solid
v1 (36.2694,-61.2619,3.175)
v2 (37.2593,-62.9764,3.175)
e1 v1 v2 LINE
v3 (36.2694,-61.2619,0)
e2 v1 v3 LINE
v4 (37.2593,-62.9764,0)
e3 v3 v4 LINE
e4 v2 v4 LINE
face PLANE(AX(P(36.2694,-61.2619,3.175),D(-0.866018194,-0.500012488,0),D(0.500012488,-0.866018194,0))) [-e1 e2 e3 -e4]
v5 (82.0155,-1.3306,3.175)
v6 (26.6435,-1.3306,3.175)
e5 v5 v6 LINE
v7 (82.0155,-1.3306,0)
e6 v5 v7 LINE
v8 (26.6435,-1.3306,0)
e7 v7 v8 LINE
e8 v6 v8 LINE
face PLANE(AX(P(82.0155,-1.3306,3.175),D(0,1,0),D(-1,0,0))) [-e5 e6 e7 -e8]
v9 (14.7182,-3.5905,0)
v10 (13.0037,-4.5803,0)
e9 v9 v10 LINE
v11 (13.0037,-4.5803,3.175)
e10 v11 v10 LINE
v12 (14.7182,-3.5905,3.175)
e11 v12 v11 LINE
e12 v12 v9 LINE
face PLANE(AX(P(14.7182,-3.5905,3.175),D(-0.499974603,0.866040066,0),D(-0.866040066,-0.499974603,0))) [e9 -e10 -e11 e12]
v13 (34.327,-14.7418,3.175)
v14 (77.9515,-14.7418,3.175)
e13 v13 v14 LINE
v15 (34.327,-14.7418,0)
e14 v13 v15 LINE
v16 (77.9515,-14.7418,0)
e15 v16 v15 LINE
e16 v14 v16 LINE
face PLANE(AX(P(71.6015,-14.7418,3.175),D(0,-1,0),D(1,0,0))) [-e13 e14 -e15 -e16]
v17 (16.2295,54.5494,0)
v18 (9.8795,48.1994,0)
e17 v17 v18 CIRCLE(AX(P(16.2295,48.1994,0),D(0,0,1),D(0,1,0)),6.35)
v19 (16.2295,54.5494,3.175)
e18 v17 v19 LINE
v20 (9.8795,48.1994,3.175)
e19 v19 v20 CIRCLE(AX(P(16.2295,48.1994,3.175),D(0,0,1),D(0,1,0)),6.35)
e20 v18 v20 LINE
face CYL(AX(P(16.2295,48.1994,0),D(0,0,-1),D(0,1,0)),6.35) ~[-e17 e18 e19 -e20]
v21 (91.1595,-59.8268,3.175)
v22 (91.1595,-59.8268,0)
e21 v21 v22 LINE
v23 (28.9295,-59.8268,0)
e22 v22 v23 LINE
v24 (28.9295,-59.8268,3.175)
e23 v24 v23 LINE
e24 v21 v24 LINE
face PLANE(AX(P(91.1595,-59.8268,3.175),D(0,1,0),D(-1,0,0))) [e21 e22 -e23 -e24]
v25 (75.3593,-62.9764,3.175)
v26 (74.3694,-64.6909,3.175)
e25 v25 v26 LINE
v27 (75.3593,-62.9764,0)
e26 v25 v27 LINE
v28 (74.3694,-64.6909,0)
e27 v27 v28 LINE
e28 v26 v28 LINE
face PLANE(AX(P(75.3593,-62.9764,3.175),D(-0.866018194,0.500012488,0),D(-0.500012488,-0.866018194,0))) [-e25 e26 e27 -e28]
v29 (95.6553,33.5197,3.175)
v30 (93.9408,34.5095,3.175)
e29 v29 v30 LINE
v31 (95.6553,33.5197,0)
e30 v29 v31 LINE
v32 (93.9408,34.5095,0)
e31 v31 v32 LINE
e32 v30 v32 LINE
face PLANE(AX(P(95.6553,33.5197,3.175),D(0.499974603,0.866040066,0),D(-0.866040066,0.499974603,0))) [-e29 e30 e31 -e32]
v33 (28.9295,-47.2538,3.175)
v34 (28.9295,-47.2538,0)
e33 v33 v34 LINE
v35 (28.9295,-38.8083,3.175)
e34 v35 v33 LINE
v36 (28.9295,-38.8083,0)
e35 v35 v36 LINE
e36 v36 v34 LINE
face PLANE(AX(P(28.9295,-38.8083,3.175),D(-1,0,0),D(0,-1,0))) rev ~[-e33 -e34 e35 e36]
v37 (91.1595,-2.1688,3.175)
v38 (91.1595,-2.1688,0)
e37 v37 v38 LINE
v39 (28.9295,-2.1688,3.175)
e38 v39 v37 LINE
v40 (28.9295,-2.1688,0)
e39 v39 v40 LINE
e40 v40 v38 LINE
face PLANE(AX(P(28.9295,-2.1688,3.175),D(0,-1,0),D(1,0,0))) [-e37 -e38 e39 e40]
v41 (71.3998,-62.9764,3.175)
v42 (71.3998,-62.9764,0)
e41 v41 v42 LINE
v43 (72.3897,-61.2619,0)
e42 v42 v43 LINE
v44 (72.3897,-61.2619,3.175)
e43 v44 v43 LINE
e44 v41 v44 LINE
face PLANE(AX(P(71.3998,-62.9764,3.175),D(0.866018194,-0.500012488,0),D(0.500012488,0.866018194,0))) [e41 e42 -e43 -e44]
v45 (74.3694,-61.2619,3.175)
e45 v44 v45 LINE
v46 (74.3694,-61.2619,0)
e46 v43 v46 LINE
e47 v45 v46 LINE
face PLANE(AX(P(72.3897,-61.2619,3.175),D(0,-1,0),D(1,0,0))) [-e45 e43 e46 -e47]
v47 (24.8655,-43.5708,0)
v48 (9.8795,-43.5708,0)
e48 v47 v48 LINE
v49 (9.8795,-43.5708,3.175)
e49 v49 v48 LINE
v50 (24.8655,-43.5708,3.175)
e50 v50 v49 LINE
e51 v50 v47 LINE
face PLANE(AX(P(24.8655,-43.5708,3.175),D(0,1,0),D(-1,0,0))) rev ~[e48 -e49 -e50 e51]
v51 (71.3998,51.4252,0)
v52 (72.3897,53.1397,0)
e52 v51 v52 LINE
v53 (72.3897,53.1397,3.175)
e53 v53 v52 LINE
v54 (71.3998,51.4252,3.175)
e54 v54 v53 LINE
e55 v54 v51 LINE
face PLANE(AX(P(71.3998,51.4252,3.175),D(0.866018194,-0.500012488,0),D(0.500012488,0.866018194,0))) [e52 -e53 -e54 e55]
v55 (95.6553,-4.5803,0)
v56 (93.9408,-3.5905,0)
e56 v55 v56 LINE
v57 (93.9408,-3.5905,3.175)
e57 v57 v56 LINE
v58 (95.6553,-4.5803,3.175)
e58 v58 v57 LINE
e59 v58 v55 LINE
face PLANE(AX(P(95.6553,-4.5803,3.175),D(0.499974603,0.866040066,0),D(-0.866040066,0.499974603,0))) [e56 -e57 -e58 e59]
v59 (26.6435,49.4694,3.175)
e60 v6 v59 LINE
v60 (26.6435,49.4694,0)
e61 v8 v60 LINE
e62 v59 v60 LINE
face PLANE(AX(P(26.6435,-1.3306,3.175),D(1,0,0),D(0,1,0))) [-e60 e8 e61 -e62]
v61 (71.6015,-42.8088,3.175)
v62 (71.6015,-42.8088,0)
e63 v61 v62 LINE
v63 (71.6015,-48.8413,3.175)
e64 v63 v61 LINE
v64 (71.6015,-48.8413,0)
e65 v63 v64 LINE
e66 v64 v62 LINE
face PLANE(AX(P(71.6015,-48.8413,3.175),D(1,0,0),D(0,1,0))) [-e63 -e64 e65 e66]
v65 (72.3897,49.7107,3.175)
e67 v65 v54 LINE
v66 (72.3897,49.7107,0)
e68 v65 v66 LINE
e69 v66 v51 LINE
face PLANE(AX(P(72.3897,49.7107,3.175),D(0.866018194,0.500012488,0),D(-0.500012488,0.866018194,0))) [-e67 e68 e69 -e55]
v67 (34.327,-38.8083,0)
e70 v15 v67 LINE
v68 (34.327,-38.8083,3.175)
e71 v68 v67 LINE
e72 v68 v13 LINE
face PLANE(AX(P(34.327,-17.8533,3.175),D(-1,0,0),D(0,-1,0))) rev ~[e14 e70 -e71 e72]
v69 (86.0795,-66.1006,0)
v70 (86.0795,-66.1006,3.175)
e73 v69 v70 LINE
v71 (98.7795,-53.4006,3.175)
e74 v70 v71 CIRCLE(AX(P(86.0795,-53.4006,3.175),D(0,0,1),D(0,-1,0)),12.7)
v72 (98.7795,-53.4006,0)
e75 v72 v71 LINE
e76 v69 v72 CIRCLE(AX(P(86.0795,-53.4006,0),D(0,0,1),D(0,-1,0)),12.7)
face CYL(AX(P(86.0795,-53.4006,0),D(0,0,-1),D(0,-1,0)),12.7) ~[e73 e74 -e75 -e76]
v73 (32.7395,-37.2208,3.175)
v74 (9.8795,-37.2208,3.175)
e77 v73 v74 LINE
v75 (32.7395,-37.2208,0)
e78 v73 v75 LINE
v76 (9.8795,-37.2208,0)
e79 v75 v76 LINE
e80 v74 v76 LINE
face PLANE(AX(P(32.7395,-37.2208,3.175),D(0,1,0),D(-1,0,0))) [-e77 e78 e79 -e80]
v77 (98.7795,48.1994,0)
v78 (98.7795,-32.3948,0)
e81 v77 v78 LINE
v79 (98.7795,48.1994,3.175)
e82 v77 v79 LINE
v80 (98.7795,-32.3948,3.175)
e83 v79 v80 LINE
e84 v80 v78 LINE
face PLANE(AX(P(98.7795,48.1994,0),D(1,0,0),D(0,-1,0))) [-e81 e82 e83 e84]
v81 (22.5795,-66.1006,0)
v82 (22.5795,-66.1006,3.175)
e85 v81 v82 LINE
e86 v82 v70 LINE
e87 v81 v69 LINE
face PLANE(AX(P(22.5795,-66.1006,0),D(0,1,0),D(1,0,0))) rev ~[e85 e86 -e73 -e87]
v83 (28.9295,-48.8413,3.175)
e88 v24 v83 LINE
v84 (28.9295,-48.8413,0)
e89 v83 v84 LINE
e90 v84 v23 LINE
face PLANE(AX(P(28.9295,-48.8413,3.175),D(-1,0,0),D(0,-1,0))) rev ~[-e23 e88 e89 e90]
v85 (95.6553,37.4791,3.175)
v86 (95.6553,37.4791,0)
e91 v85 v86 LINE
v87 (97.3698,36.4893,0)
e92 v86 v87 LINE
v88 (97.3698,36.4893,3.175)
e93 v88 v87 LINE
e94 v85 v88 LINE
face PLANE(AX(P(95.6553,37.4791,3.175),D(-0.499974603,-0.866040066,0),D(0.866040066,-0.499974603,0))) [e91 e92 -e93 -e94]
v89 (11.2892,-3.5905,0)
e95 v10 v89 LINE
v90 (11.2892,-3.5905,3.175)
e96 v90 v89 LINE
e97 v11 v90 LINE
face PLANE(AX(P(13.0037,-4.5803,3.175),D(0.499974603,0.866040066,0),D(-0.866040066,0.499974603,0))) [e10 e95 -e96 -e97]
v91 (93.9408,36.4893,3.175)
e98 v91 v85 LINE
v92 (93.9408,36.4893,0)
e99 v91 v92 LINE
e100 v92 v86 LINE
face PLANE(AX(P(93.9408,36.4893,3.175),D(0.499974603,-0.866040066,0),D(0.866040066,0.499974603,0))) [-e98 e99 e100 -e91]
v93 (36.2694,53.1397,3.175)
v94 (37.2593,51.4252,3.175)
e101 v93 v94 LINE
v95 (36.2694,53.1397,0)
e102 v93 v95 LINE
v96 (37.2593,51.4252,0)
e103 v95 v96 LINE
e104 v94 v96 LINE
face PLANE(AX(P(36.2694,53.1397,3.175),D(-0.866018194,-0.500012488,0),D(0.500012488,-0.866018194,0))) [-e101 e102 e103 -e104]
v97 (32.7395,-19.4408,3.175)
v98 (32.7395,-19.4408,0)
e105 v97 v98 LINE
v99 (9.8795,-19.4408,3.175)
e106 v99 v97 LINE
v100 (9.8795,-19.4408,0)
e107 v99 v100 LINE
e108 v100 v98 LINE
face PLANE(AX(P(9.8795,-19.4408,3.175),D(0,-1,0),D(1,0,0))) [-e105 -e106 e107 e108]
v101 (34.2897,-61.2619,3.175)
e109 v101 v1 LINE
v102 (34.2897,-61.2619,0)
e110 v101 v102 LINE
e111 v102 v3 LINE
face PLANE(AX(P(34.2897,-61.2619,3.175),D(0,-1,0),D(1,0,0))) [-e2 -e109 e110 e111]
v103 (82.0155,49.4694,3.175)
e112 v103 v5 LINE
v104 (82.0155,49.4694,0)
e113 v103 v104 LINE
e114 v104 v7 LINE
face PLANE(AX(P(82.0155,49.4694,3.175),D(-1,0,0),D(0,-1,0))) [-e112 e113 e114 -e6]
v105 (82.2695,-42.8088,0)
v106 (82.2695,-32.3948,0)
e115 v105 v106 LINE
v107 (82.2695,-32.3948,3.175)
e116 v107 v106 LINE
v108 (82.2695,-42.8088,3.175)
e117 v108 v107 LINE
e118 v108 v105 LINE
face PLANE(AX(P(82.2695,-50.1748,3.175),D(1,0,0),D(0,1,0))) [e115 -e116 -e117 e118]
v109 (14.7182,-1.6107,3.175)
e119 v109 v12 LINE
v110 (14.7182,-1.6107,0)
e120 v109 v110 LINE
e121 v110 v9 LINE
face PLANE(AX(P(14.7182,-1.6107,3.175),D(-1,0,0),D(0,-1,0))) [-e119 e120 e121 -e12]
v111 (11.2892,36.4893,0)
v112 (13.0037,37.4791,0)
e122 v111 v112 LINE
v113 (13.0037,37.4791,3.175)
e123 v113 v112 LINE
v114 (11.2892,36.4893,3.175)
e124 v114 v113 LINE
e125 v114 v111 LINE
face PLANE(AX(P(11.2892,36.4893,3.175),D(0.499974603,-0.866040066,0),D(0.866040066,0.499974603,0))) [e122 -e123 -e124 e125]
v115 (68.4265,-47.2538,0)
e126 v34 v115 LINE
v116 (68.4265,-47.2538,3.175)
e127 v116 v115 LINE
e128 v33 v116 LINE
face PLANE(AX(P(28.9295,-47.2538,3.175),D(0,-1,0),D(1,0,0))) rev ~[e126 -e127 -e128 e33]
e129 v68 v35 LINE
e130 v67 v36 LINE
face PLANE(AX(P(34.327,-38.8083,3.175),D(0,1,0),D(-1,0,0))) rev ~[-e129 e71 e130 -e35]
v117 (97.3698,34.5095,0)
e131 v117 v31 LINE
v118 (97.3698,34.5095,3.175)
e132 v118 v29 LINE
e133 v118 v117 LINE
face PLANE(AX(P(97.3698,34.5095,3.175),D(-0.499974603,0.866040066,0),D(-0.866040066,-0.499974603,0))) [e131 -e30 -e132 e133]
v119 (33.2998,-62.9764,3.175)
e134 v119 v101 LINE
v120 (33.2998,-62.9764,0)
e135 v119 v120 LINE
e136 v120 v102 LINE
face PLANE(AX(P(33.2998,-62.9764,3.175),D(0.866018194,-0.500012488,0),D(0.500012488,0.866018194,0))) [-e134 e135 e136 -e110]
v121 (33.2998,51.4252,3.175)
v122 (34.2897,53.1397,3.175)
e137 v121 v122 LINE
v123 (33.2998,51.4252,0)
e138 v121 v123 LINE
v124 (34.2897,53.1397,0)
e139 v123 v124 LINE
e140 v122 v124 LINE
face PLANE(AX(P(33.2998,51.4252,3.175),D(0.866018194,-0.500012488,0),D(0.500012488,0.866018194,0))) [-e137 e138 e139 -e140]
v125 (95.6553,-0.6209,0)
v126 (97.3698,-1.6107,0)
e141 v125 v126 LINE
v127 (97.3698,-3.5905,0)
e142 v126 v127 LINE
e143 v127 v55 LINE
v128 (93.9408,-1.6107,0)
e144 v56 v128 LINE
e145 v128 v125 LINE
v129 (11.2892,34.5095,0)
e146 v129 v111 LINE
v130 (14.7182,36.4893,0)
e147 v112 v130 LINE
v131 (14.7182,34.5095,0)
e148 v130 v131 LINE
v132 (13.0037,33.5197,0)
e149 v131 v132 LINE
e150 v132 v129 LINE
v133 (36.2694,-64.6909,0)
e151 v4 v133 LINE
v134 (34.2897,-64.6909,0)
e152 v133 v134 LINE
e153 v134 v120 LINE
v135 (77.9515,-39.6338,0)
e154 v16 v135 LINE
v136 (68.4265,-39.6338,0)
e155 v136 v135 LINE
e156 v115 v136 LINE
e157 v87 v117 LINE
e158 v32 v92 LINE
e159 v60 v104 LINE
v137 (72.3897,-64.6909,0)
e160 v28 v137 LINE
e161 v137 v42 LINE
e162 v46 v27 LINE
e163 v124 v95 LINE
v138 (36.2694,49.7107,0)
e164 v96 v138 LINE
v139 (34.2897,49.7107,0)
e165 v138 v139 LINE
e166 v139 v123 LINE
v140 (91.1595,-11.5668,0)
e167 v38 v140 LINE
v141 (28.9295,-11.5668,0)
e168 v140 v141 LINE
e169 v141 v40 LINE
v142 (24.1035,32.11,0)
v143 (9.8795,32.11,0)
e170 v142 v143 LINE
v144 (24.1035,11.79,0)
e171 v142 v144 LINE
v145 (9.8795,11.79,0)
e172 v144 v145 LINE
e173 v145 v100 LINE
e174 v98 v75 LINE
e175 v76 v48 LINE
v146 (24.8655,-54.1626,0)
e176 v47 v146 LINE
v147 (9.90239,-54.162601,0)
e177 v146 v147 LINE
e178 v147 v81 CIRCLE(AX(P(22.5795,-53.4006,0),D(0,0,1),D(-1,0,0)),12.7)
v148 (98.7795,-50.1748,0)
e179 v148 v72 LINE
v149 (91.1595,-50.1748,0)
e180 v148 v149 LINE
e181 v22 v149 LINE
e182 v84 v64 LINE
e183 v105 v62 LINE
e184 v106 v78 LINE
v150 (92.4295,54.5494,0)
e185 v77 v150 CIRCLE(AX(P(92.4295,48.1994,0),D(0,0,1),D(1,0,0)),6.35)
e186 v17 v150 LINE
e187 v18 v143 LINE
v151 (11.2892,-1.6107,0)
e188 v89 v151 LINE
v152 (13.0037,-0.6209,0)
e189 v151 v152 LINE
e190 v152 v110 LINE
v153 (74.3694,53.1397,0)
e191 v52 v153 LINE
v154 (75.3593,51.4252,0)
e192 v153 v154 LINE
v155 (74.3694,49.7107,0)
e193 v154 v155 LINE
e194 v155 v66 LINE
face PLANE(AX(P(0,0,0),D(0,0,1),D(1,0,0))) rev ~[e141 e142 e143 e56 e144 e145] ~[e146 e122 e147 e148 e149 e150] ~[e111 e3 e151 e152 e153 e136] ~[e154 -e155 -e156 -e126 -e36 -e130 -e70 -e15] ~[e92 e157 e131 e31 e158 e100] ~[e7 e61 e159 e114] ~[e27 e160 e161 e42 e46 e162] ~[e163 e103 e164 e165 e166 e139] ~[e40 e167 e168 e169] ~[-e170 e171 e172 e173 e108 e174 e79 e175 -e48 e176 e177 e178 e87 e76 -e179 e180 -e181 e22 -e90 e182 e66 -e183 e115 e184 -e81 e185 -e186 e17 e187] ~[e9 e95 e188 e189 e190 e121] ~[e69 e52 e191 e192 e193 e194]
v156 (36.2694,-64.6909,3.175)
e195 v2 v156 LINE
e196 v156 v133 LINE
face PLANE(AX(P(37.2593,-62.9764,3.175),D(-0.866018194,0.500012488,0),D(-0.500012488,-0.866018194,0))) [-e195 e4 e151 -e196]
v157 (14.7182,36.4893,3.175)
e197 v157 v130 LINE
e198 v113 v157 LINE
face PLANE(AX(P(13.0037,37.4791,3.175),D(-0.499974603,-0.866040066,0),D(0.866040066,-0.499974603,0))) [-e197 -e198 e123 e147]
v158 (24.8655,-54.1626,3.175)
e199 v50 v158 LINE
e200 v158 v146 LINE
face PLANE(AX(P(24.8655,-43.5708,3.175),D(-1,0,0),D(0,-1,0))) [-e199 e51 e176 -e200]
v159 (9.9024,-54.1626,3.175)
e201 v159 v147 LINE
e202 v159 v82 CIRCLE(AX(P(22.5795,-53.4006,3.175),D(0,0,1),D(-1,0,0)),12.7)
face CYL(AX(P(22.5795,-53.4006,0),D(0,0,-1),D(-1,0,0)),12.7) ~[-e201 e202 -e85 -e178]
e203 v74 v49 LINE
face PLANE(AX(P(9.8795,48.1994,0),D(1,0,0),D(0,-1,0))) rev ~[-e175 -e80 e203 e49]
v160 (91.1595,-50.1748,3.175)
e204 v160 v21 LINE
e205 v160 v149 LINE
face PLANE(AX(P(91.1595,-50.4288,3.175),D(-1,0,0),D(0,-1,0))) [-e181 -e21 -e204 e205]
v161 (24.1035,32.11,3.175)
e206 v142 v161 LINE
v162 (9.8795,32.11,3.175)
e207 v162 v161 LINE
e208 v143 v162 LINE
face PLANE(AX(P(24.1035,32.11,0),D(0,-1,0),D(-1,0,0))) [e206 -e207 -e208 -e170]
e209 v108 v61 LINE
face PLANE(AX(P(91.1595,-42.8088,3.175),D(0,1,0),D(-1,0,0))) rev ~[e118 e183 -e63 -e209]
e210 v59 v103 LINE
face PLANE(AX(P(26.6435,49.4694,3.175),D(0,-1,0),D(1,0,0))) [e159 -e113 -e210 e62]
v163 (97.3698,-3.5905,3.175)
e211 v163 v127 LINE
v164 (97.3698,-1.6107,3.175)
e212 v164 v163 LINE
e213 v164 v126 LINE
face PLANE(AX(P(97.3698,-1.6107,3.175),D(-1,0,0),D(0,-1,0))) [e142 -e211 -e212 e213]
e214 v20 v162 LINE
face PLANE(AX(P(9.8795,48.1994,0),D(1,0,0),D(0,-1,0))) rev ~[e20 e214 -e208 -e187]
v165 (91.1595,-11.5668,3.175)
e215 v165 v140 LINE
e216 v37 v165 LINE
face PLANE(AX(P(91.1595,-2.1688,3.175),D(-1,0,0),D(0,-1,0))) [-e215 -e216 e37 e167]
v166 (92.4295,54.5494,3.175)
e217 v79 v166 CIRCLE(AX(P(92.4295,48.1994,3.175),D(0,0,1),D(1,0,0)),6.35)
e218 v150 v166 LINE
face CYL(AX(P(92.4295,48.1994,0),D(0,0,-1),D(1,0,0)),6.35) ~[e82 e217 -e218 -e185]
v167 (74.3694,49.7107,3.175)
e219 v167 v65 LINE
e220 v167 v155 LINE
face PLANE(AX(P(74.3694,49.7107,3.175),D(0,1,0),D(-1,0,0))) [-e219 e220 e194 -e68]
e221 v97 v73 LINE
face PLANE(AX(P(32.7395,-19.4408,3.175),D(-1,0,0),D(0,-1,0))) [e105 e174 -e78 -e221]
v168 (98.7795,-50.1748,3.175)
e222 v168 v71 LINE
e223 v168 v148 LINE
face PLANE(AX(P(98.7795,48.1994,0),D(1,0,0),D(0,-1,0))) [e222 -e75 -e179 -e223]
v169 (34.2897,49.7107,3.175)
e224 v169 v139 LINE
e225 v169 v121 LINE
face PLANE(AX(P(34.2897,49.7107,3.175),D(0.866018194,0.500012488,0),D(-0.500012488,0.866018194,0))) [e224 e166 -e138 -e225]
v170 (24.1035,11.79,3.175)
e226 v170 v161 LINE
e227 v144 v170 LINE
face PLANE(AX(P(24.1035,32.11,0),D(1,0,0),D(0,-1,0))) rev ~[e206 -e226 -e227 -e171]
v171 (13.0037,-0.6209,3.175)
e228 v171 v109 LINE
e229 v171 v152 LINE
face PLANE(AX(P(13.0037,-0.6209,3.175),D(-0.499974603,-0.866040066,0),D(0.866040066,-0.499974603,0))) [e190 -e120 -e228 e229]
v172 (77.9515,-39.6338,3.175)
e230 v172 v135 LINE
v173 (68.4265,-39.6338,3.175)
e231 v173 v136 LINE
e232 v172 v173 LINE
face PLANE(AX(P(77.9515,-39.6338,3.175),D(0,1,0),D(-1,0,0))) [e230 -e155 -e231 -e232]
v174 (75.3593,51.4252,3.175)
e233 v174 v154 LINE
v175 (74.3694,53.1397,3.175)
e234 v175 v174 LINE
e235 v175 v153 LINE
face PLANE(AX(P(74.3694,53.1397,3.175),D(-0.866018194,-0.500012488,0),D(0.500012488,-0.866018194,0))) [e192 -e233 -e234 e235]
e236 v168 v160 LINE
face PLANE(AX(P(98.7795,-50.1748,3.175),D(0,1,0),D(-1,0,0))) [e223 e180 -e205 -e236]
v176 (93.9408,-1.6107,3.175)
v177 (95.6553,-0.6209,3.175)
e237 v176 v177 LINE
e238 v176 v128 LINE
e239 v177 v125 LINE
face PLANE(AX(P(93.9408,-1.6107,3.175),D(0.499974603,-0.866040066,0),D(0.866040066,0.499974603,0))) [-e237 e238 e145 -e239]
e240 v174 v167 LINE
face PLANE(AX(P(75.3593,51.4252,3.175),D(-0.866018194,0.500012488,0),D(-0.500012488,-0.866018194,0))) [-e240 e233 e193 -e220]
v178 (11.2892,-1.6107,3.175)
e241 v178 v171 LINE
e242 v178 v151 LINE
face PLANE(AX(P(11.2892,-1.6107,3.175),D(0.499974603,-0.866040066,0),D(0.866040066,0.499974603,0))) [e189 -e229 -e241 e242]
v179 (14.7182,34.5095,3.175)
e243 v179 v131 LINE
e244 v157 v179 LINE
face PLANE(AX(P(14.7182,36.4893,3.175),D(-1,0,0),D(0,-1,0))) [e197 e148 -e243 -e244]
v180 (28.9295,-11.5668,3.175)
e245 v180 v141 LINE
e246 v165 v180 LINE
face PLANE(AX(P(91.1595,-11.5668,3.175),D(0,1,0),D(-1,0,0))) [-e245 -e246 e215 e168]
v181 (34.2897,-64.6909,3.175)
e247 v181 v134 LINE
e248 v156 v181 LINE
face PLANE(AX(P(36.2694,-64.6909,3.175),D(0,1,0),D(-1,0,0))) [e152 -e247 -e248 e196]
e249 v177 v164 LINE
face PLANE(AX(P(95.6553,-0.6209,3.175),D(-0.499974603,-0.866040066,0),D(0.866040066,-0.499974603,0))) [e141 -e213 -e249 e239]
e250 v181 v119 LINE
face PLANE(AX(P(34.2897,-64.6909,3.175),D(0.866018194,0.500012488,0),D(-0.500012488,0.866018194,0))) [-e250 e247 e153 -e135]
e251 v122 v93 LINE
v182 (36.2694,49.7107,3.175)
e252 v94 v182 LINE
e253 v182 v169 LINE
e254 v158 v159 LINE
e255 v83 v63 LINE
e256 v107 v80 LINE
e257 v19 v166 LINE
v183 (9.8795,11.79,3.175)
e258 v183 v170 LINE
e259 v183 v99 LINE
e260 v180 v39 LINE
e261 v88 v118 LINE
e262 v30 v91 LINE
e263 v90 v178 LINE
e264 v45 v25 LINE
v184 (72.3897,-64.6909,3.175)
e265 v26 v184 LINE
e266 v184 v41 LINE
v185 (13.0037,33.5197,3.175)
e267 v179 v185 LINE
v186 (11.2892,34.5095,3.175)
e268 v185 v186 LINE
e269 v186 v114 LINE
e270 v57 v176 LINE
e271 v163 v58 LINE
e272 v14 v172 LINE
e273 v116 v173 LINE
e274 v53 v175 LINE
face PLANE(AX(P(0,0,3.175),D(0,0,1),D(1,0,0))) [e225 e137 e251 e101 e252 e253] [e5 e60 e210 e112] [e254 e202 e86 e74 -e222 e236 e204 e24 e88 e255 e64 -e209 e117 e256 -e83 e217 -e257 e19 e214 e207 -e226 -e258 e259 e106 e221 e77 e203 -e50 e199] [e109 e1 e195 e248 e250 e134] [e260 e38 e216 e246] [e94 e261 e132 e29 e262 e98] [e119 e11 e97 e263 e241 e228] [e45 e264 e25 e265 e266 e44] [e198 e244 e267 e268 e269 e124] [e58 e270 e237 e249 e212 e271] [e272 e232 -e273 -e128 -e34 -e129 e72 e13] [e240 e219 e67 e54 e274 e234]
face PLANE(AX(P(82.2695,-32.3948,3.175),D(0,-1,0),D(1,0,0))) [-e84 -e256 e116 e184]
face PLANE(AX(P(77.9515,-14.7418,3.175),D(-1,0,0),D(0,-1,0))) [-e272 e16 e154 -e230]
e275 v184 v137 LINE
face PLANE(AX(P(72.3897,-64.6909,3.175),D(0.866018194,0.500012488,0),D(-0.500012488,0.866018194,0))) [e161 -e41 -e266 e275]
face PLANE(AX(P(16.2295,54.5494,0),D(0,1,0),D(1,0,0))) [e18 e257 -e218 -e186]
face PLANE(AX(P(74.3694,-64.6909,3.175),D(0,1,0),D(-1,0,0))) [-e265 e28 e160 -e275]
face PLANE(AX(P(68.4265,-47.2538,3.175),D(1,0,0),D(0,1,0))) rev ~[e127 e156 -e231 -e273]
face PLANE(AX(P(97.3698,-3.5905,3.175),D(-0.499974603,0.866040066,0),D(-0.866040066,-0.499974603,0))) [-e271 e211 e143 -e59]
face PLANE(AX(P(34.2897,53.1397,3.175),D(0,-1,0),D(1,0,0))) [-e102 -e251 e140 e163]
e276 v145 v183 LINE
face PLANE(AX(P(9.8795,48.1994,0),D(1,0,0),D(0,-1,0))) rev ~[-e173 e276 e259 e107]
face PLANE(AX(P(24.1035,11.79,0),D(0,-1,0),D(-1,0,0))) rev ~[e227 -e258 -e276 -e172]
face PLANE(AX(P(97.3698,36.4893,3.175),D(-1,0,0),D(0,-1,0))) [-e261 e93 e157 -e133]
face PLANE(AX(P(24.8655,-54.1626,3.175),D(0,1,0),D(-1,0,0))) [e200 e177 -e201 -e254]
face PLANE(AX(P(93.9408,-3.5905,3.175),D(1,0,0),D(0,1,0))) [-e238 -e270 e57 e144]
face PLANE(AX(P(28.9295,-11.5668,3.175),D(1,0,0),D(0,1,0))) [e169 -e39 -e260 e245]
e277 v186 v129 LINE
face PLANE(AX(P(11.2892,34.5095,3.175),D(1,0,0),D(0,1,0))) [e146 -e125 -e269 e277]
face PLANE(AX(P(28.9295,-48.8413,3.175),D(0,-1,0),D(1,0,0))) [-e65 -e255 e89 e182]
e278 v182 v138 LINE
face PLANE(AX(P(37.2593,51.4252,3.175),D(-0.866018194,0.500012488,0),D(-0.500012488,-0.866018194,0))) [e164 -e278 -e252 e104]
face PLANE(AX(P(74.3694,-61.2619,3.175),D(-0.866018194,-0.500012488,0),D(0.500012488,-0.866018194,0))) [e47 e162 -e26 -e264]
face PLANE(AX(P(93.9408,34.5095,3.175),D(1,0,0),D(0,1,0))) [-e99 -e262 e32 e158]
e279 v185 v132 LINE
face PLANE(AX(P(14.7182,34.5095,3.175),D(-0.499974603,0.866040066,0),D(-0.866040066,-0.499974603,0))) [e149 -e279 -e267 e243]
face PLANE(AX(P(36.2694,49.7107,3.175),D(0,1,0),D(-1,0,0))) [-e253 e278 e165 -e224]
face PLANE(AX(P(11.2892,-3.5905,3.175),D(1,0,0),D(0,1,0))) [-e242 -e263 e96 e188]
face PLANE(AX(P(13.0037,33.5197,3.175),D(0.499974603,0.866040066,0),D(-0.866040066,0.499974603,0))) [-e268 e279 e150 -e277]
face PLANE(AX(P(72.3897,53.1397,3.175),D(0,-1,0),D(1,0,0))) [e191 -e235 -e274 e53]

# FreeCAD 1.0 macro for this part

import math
import FreeCAD as App
import Part
import Sketcher
from FreeCAD import Vector
Q = App.Units.Quantity


def add_polygon(sketch, points):
    """Adds a closed chain of lines whose ends are joined by coincident constraints."""
    first, n = sketch.GeometryCount, len(points)
    for a, b in zip(points, points[1:] + points[:1]):
        sketch.addGeometry(Part.LineSegment(App.Vector(*a, 0), App.Vector(*b, 0)), False)
    for i in range(n):
        sketch.addConstraint(Sketcher.Constraint("Coincident", first + i, 2, first + (i + 1) % n, 1))

doc = App.newDocument("Part")
params = doc.addObject("Spreadsheet::Sheet", "Params")
for row, (alias, value) in enumerate([
    ("sketch1_radius", "0.5 in"),
    ("sketch1_radius2", "0.25 in"),
    ("sketch1_height", "4 in"),
    ("pad1_length", "0.125 in"),
    ("sketch2_height", "2 in"),
    ("sketch2_width", "2.18 in"),
    ("sketch3_width", "0.9 in"),
    ("sketch3_height", "0.7 in"),
    ("sketch4_width", "0.59 in"),
    ("sketch4_radius", "0.5 in"),
    ("sketch4_height", "0.387 in"),
    ("sketch4_height2", "0.417 in"),
    ("sketch5_width", "2.45 in"),
    ("sketch5_height", "0.37 in"),
    ("sketch6_height", "0.3 in"),
    ("sketch6_width", "0.125 in"),
    ("sketch6_height2", "0.0625 in"),
    ("sketch6_width2", "0.77 in"),
    ("sketch6_width3", "1.68 in"),
    ("sketch7_width", "0.25 in"),
    ("sketch7_height", "0.98 in"),
    ("sketch8_height", "0.7 in"),
    ("sketch8_width", "0.65 in"),
    ("sketch10_height", "0.8 in"),
    ("sketch10_width", "0.56 in"),
], start=1):
    params.set(f"A{row}", alias)
    params.set(f"B{row}", "=" + value)
    params.setAlias(f"B{row}", alias)

body = doc.addObject("PartDesign::Body", "Body")

# Sketch on XY plane
sketch1 = body.newObject("Sketcher::SketchObject", "Sketch")
sketch1.AttachmentSupport = (doc.getObject("XY_Plane"), [""])
sketch1.MapMode = "FlatFace"
sketch1.addGeometry([
    Part.ArcOfCircle(Part.Circle(Vector(16, 48, 0), Vector(0, 0, 1), 6), math.radians(90), math.radians(180)),  # 0
    Part.LineSegment(Vector(10, 48, 0), Vector(10, -53, 0)),  # 1
    Part.ArcOfCircle(Part.Circle(Vector(23, -53, 0), Vector(0, 0, 1), 13), math.radians(180), math.radians(270)),  # 2
    Part.LineSegment(Vector(23, -66, 0), Vector(86, -66, 0)),  # 3
    Part.ArcOfCircle(Part.Circle(Vector(86, -53, 0), Vector(0, 0, 1), 13), math.radians(-90), math.radians(0)),  # 4
    Part.LineSegment(Vector(99, -53, 0), Vector(99, 48, 0)),  # 5
    Part.ArcOfCircle(Part.Circle(Vector(92, 48, 0), Vector(0, 0, 1), 6), math.radians(0), math.radians(90)),  # 6
    Part.LineSegment(Vector(92, 55, 0), Vector(16, 55, 0)),  # 7
], False)
sketch1.addConstraint([
    Sketcher.Constraint("Tangent", 0, 2, 1, 1),
    Sketcher.Constraint("Tangent", 1, 2, 2, 1),
    Sketcher.Constraint("Tangent", 2, 2, 3, 1),
    Sketcher.Constraint("Tangent", 3, 2, 4, 1),
    Sketcher.Constraint("Tangent", 4, 2, 5, 1),
    Sketcher.Constraint("Tangent", 5, 2, 6, 1),
    Sketcher.Constraint("Tangent", 6, 2, 7, 1),
    Sketcher.Constraint("Tangent", 7, 2, 0, 1),
    Sketcher.Constraint("Vertical", 1),
    Sketcher.Constraint("Horizontal", 3),
    Sketcher.Constraint("Vertical", 5),
    Sketcher.Constraint("Horizontal", 7),
    Sketcher.Constraint("Equal", 2, 4),
    Sketcher.Constraint("Equal", 0, 6),
    Sketcher.Constraint("Radius", 2, Q("0.5 in")),
    Sketcher.Constraint("Radius", 0, Q("0.25 in")),
    Sketcher.Constraint("DistanceX", 1, 2, 4, 2, Q("3.5 in")),
    Sketcher.Constraint("DistanceY", 1, 2, 1, 1, Q("4 in")),
    Sketcher.Constraint("DistanceX", -1, 1, 0, 3, Q("16.2295 mm")),
    Sketcher.Constraint("DistanceY", -1, 1, 0, 3, Q("48.1994 mm")),
])
sketch1.setExpression("Constraints[14]", "Params.sketch1_radius")
sketch1.setExpression("Constraints[15]", "Params.sketch1_radius2")
sketch1.setExpression("Constraints[17]", "Params.sketch1_height")
pad1 = body.newObject("PartDesign::Pad", "Pad")
pad1.Profile = sketch1
pad1.setExpression("Length", "Params.pad1_length")

# Sketch on XY plane
sketch2 = body.newObject("Sketcher::SketchObject", "Sketch001")
sketch2.AttachmentSupport = (doc.getObject("XY_Plane"), [""])
sketch2.MapMode = "FlatFace"
sketch2.AttachmentOffset = App.Placement(Vector(0, 0, 0.125 * 25.4), App.Rotation())
add_polygon(sketch2, [(82, 49), (27, 49), (27, -1), (82, -1)])  # lines 0-3
sketch2.addConstraint([
    Sketcher.Constraint("Horizontal", 0),
    Sketcher.Constraint("Vertical", 1),
    Sketcher.Constraint("Horizontal", 2),
    Sketcher.Constraint("Vertical", 3),
    Sketcher.Constraint("DistanceY", 1, 2, 1, 1, Q("2 in")),
    Sketcher.Constraint("DistanceX", 0, 2, 0, 1, Q("2.18 in")),
    Sketcher.Constraint("DistanceX", -1, 1, 0, 2, Q("26.6435 mm")),
    Sketcher.Constraint("DistanceY", -1, 1, 0, 2, Q("49.4694 mm")),
])
sketch2.setExpression("Constraints[8]", "Params.sketch2_height")
sketch2.setExpression("Constraints[9]", "Params.sketch2_width")
pocket1 = body.newObject("PartDesign::Pocket", "Pocket")
pocket1.Profile = sketch2
pocket1.Type = "ThroughAll"

# Sketch on XY plane
sketch3 = body.newObject("Sketcher::SketchObject", "Sketch002")
sketch3.AttachmentSupport = (doc.getObject("XY_Plane"), [""])
sketch3.MapMode = "FlatFace"
sketch3.AttachmentOffset = App.Placement(Vector(0, 0, 0.125 * 25.4), App.Rotation())
add_polygon(sketch3, [(10, -19), (10, -37), (33, -37), (33, -19)])  # lines 0-3
sketch3.addConstraint([
    Sketcher.Constraint("Vertical", 0),
    Sketcher.Constraint("Horizontal", 1),
    Sketcher.Constraint("Vertical", 2),
    Sketcher.Constraint("Horizontal", 3),
    Sketcher.Constraint("DistanceX", 1, 1, 1, 2, Q("0.9 in")),
    Sketcher.Constraint("DistanceY", 0, 2, 0, 1, Q("0.7 in")),
    Sketcher.Constraint("DistanceX", -1, 1, 0, 2, Q("9.8795 mm")),
    Sketcher.Constraint("DistanceY", 0, 2, -1, 1, Q("37.2208 mm")),
])
sketch3.setExpression("Constraints[8]", "Params.sketch3_width")
sketch3.setExpression("Constraints[9]", "Params.sketch3_height")
pocket2 = body.newObject("PartDesign::Pocket", "Pocket001")
pocket2.Profile = sketch3
pocket2.Type = "ThroughAll"

# Sketch on XY plane
sketch4 = body.newObject("Sketcher::SketchObject", "Sketch003")
sketch4.AttachmentSupport = (doc.getObject("XY_Plane"), [""])
sketch4.MapMode = "FlatFace"
sketch4.AttachmentOffset = App.Placement(Vector(0, 0, 0.125 * 25.4), App.Rotation())
sketch4.addGeometry([
    Part.LineSegment(Vector(9.9, -43.6, 0), Vector(9.9, -53.4, 0)),  # 0
    Part.ArcOfCircle(Part.Circle(Vector(22.6, -53.4, 0), Vector(0, 0, 1), 12.7), math.radians(180), math.radians(183.44)),  # 1
    Part.LineSegment(Vector(9.9, -54.2, 0), Vector(24.9, -54.2, 0)),  # 2
    Part.LineSegment(Vector(24.9, -54.2, 0), Vector(24.9, -43.6, 0)),  # 3
    Part.LineSegment(Vector(24.9, -43.6, 0), Vector(9.9, -43.6, 0)),  # 4
], False)
sketch4.addConstraint([
    Sketcher.Constraint("Tangent", 0, 2, 1, 1),
    Sketcher.Constraint("Coincident", 1, 2, 2, 1),
    Sketcher.Constraint("Coincident", 2, 2, 3, 1),
    Sketcher.Constraint("Coincident", 3, 2, 4, 1),
    Sketcher.Constraint("Coincident", 4, 2, 0, 1),
    Sketcher.Constraint("Vertical", 0),
    Sketcher.Constraint("Horizontal", 2),
    Sketcher.Constraint("Vertical", 3),
    Sketcher.Constraint("Horizontal", 4),
    Sketcher.Constraint("DistanceX", 4, 2, 4, 1, Q("0.59 in")),
    Sketcher.Constraint("Radius", 1, Q("0.5 in")),
    Sketcher.Constraint("DistanceY", 0, 2, 0, 1, Q("0.387 in")),
    Sketcher.Constraint("DistanceY", 3, 1, 3, 2, Q("0.417 in")),
    Sketcher.Constraint("DistanceX", -1, 1, 1, 3, Q("22.5795 mm")),
    Sketcher.Constraint("DistanceY", 1, 3, -1, 1, Q("53.4006 mm")),
])
sketch4.setExpression("Constraints[9]", "Params.sketch4_width")
sketch4.setExpression("Constraints[10]", "Params.sketch4_radius")
sketch4.setExpression("Constraints[11]", "Params.sketch4_height")
sketch4.setExpression("Constraints[12]", "Params.sketch4_height2")
pocket3 = body.newObject("PartDesign::Pocket", "Pocket002")
pocket3.Profile = sketch4
pocket3.Type = "ThroughAll"

# Sketch on XY plane
sketch5 = body.newObject("Sketcher::SketchObject", "Sketch004")
sketch5.AttachmentSupport = (doc.getObject("XY_Plane"), [""])
sketch5.MapMode = "FlatFace"
sketch5.AttachmentOffset = App.Placement(Vector(0, 0, 0.125 * 25.4), App.Rotation())
add_polygon(sketch5, [(91, -2), (29, -2), (29, -12), (91, -12)])  # lines 0-3
add_polygon(sketch5, [(91, -50), (29, -50), (29, -60), (91, -60)])  # lines 4-7
sketch5.addConstraint([
    Sketcher.Constraint("Horizontal", 0),
    Sketcher.Constraint("Vertical", 1),
    Sketcher.Constraint("Horizontal", 2),
    Sketcher.Constraint("Vertical", 3),
    Sketcher.Constraint("Horizontal", 4),
    Sketcher.Constraint("Vertical", 5),
    Sketcher.Constraint("Horizontal", 6),
    Sketcher.Constraint("Vertical", 7),
    Sketcher.Constraint("Vertical", 1, 2, 4, 2),
    Sketcher.Constraint("Vertical", 3, 2, 6, 2),
    Sketcher.Constraint("Equal", 3, 5),
    Sketcher.Constraint("DistanceX", 0, 2, 0, 1, Q("2.45 in")),
    Sketcher.Constraint("DistanceY", 1, 2, 1, 1, Q("0.37 in")),
    Sketcher.Constraint("DistanceY", 4, 2, 0, 2, Q("1.9 in")),
    Sketcher.Constraint("DistanceX", -1, 1, 0, 2, Q("28.9295 mm")),
    Sketcher.Constraint("DistanceY", 0, 2, -1, 1, Q("2.1688 mm")),
])
sketch5.setExpression("Constraints[19]", "Params.sketch5_width")
sketch5.setExpression("Constraints[20]", "Params.sketch5_height")
pocket4 = body.newObject("PartDesign::Pocket", "Pocket003")
pocket4.Profile = sketch5
pocket4.Type = "ThroughAll"

# Sketch on XY plane
sketch6 = body.newObject("Sketcher::SketchObject", "Sketch005")
sketch6.AttachmentSupport = (doc.getObject("XY_Plane"), [""])
sketch6.MapMode = "FlatFace"
sketch6.AttachmentOffset = App.Placement(Vector(0, 0, 0.125 * 25.4), App.Rotation())
add_polygon(sketch6, [(71.6, -39.6), (71.6, -14.7), (34.3, -14.7), (34.3, -38.8), (28.9, -38.8), (28.9, -47.3), (68.4, -47.3), (68.4, -39.6)])  # lines 0-7
add_polygon(sketch6, [(91.2, -42.8), (71.6, -42.8), (71.6, -48.8), (28.9, -48.8), (28.9, -50.4), (91.2, -50.4)])  # lines 8-13
sketch6.addConstraint([
    Sketcher.Constraint("Vertical", 0),
    Sketcher.Constraint("Horizontal", 1),
    Sketcher.Constraint("Vertical", 2),
    Sketcher.Constraint("Horizontal", 3),
    Sketcher.Constraint("Vertical", 4),
    Sketcher.Constraint("Horizontal", 5),
    Sketcher.Constraint("Vertical", 6),
    Sketcher.Constraint("Horizontal", 7),
    Sketcher.Constraint("Horizontal", 8),
    Sketcher.Constraint("Vertical", 9),
    Sketcher.Constraint("Horizontal", 10),
    Sketcher.Constraint("Vertical", 11),
    Sketcher.Constraint("Horizontal", 12),
    Sketcher.Constraint("Vertical", 13),
    Sketcher.Constraint("Vertical", 7, 2, 8, 2),
    Sketcher.Constraint("Vertical", 4, 2, 10, 2),
    Sketcher.Constraint("Equal", 6, 13),
    Sketcher.Constraint("DistanceY", 6, 1, 6, 2, Q("0.3 in")),
    Sketcher.Constraint("DistanceX", 7, 1, 7, 2, Q("0.125 in")),
    Sketcher.Constraint("DistanceY", 11, 2, 11, 1, Q("0.0625 in")),
    Sketcher.Constraint("DistanceY", 8, 2, 7, 2, Q("0.125 in")),
    Sketcher.Constraint("DistanceX", 8, 2, 8, 1, Q("0.77 in")),
    Sketcher.Constraint("DistanceX", 10, 2, 10, 1, Q("1.68 in")),
    Sketcher.Constraint("DistanceY", 0, 1, 0, 2, Q("0.98 in")),
    Sketcher.Constraint("DistanceX", 1, 2, 1, 1, Q("1.4675 in")),
    Sketcher.Constraint("DistanceY", 2, 2, 2, 1, Q("0.9475 in")),
    Sketcher.Constraint("DistanceX", -1, 1, 0, 2, Q("71.6015 mm")),
    Sketcher.Constraint("DistanceY", 0, 2, -1, 1, Q("14.7418 mm")),
])
sketch6.setExpression("Constraints[31]", "Params.sketch6_height")
sketch6.setExpression("Constraints[32]", "Params.sketch6_width")
sketch6.setExpression("Constraints[33]", "Params.sketch6_height2")
sketch6.setExpression("Constraints[35]", "Params.sketch6_width2")
sketch6.setExpression("Constraints[36]", "Params.sketch6_width3")
pocket5 = body.newObject("PartDesign::Pocket", "Pocket004")
pocket5.Profile = sketch6
pocket5.Type = "ThroughAll"

# Sketch on XY plane
sketch7 = body.newObject("Sketcher::SketchObject", "Sketch006")
sketch7.AttachmentSupport = (doc.getObject("XY_Plane"), [""])
sketch7.MapMode = "FlatFace"
sketch7.AttachmentOffset = App.Placement(Vector(0, 0, 0.125 * 25.4), App.Rotation())
add_polygon(sketch7, [(78, -15), (72, -15), (72, -40), (78, -40)])  # lines 0-3
sketch7.addConstraint([
    Sketcher.Constraint("Horizontal", 0),
    Sketcher.Constraint("Vertical", 1),
    Sketcher.Constraint("Horizontal", 2),
    Sketcher.Constraint("Vertical", 3),
    Sketcher.Constraint("DistanceX", 0, 2, 0, 1, Q("0.25 in")),
    Sketcher.Constraint("DistanceY", 1, 2, 1, 1, Q("0.98 in")),
    Sketcher.Constraint("DistanceX", -1, 1, 0, 2, Q("71.6015 mm")),
    Sketcher.Constraint("DistanceY", 0, 2, -1, 1, Q("14.7418 mm")),
])
sketch7.setExpression("Constraints[8]", "Params.sketch7_width")
sketch7.setExpression("Constraints[9]", "Params.sketch7_height")
pocket6 = body.newObject("PartDesign::Pocket", "Pocket005")
pocket6.Profile = sketch7
pocket6.Type = "ThroughAll"

# Sketch on XY plane
sketch8 = body.newObject("Sketcher::SketchObject", "Sketch007")
sketch8.AttachmentSupport = (doc.getObject("XY_Plane"), [""])
sketch8.MapMode = "FlatFace"
sketch8.AttachmentOffset = App.Placement(Vector(0, 0, 0.125 * 25.4), App.Rotation())
add_polygon(sketch8, [(99, -50), (99, -32), (82, -32), (82, -50)])  # lines 0-3
sketch8.addConstraint([
    Sketcher.Constraint("Vertical", 0),
    Sketcher.Constraint("Horizontal", 1),
    Sketcher.Constraint("Vertical", 2),
    Sketcher.Constraint("Horizontal", 3),
    Sketcher.Constraint("DistanceY", 0, 1, 0, 2, Q("0.7 in")),
    Sketcher.Constraint("DistanceX", 1, 2, 1, 1, Q("0.65 in")),
    Sketcher.Constraint("DistanceX", -1, 1, 0, 2, Q("98.7795 mm")),
    Sketcher.Constraint("DistanceY", 0, 2, -1, 1, Q("32.3948 mm")),
])
sketch8.setExpression("Constraints[8]", "Params.sketch8_height")
sketch8.setExpression("Constraints[9]", "Params.sketch8_width")
pocket7 = body.newObject("PartDesign::Pocket", "Pocket006")
pocket7.Profile = sketch8
pocket7.Type = "ThroughAll"

# Sketch on XY plane
sketch9 = body.newObject("Sketcher::SketchObject", "Sketch008")
sketch9.AttachmentSupport = (doc.getObject("XY_Plane"), [""])
sketch9.MapMode = "FlatFace"
sketch9.AttachmentOffset = App.Placement(Vector(0, 0, 0.125 * 25.4), App.Rotation())
add_polygon(sketch9, [(34.3, 49.7), (36.3, 49.7), (37.3, 51.4), (36.3, 53.1), (34.3, 53.1), (33.3, 51.4)])  # lines 0-5
add_polygon(sketch9, [(74.4, 49.7), (75.4, 51.4), (74.4, 53.1), (72.4, 53.1), (71.4, 51.4), (72.4, 49.7)])  # lines 6-11
add_polygon(sketch9, [(95.7, 33.5), (97.4, 34.5), (97.4, 36.5), (95.7, 37.5), (93.9, 36.5), (93.9, 34.5)])  # lines 12-17
add_polygon(sketch9, [(36.3, -64.7), (37.3, -63), (36.3, -61.3), (34.3, -61.3), (33.3, -63), (34.3, -64.7)])  # lines 18-23
add_polygon(sketch9, [(74.4, -64.7), (75.4, -63), (74.4, -61.3), (72.4, -61.3), (71.4, -63), (72.4, -64.7)])  # lines 24-29
add_polygon(sketch9, [(95.7, -4.6), (97.4, -3.6), (97.4, -1.6), (95.7, -0.6), (93.9, -1.6), (93.9, -3.6)])  # lines 30-35
add_polygon(sketch9, [(13, 33.5), (14.7, 34.5), (14.7, 36.5), (13, 37.5), (11.3, 36.5), (11.3, 34.5)])  # lines 36-41
add_polygon(sketch9, [(14.7, -3.6), (14.7, -1.6), (13, -0.6), (11.3, -1.6), (11.3, -3.6), (13, -4.6)])  # lines 42-47
sketch9.addConstraint([
    Sketcher.Constraint("Horizontal", 0),
    Sketcher.Constraint("Horizontal", 3),
    Sketcher.Constraint("Horizontal", 8),
    Sketcher.Constraint("Horizontal", 11),
    Sketcher.Constraint("Vertical", 13),
    Sketcher.Constraint("Vertical", 16),
    Sketcher.Constraint("Horizontal", 20),
    Sketcher.Constraint("Horizontal", 23),
    Sketcher.Constraint("Horizontal", 26),
    Sketcher.Constraint("Horizontal", 29),
    Sketcher.Constraint("Vertical", 31),
    Sketcher.Constraint("Vertical", 34),
    Sketcher.Constraint("Vertical", 37),
    Sketcher.Constraint("Vertical", 40),
    Sketcher.Constraint("Vertical", 42),
    Sketcher.Constraint("Vertical", 45),
    Sketcher.Constraint("Parallel", 1, 4),
    Sketcher.Constraint("Parallel", 2, 5),
    Sketcher.Constraint("Parallel", 4, 6),
    Sketcher.Constraint("Parallel", 5, 7),
    Sketcher.Constraint("Parallel", 6, 9),
    Sketcher.Constraint("Parallel", 7, 10),
    Sketcher.Constraint("Perpendicular", 10, 12),
    Sketcher.Constraint("Perpendicular", 9, 14),
    Sketcher.Constraint("Parallel", 12, 15),
    Sketcher.Constraint("Parallel", 14, 17),
    Sketcher.Constraint("Perpendicular", 17, 18),
    Sketcher.Constraint("Perpendicular", 15, 19),
    Sketcher.Constraint("Parallel", 18, 21),
    Sketcher.Constraint("Parallel", 19, 22),
    Sketcher.Constraint("Parallel", 21, 24),
    Sketcher.Constraint("Parallel", 22, 25),
    Sketcher.Constraint("Parallel", 24, 27),
    Sketcher.Constraint("Parallel", 25, 28),
    Sketcher.Constraint("Perpendicular", 28, 30),
    Sketcher.Constraint("Perpendicular", 27, 32),
    Sketcher.Constraint("Parallel", 30, 33),
    Sketcher.Constraint("Parallel", 32, 35),
    Sketcher.Constraint("Parallel", 33, 36),
    Sketcher.Constraint("Parallel", 35, 38),
    Sketcher.Constraint("Parallel", 36, 39),
    Sketcher.Constraint("Parallel", 38, 41),
    Sketcher.Constraint("Parallel", 41, 43),
    Sketcher.Constraint("Parallel", 39, 44),
    Sketcher.Constraint("Parallel", 43, 46),
    Sketcher.Constraint("Parallel", 44, 47),
    Sketcher.Constraint("Horizontal", 1, 2, 4, 2),
    Sketcher.Constraint("Horizontal", 4, 2, 6, 2),
    Sketcher.Constraint("Horizontal", 3, 2, 7, 2),
    Sketcher.Constraint("Horizontal", 6, 2, 9, 2),
    Sketcher.Constraint("Horizontal", 5, 2, 10, 2),
    Sketcher.Constraint("Horizontal", 13, 2, 15, 2),
    Sketcher.Constraint("Horizontal", 12, 2, 16, 2),
    Sketcher.Constraint("Horizontal", 18, 2, 21, 2),
    Sketcher.Constraint("Horizontal", 21, 2, 24, 2),
    Sketcher.Constraint("Horizontal", 20, 2, 25, 2),
    Sketcher.Constraint("Horizontal", 24, 2, 27, 2),
    Sketcher.Constraint("Horizontal", 23, 2, 28, 2),
    Sketcher.Constraint("Horizontal", 31, 2, 33, 2),
    Sketcher.Constraint("Horizontal", 30, 2, 34, 2),
    Sketcher.Constraint("Horizontal", 16, 2, 36, 2),
    Sketcher.Constraint("Horizontal", 15, 2, 37, 2),
    Sketcher.Constraint("Horizontal", 14, 2, 38, 2),
    Sketcher.Constraint("Horizontal", 37, 2, 39, 2),
    Sketcher.Constraint("Horizontal", 36, 2, 40, 2),
    Sketcher.Constraint("Horizontal", 33, 2, 42, 2),
    Sketcher.Constraint("Horizontal", 32, 2, 43, 2),
    Sketcher.Constraint("Horizontal", 42, 2, 44, 2),
    Sketcher.Constraint("Horizontal", 34, 2, 45, 2),
    Sketcher.Constraint("Horizontal", 35, 2, 46, 2),
    Sketcher.Constraint("Vertical", 0, 2, 2, 2),
    Sketcher.Constraint("Vertical", 3, 2, 5, 2),
    Sketcher.Constraint("Vertical", 1, 2, 18, 2),
    Sketcher.Constraint("Vertical", 2, 2, 19, 2),
    Sketcher.Constraint("Vertical", 5, 2, 20, 2),
    Sketcher.Constraint("Vertical", 20, 2, 22, 2),
    Sketcher.Constraint("Vertical", 6, 2, 24, 2),
    Sketcher.Constraint("Vertical", 10, 2, 26, 2),
    Sketcher.Constraint("Vertical", 13, 2, 30, 2),
    Sketcher.Constraint("Vertical", 17, 2, 32, 2),
    Sketcher.Constraint("Vertical", 37, 2, 42, 2),
    Sketcher.Constraint("Equal", 3, 8),
    Sketcher.Constraint("Equal", 29, 13),
    Sketcher.Constraint("Equal", 16, 31),
    Sketcher.Constraint("Equal", 10, 12),
    Sketcher.Constraint("DistanceX", 1, 2, 6, 2, Q("1.5 in")),
    Sketcher.Constraint("DistanceY", 30, 2, 12, 2, Q("1.5 in")),
    Sketcher.Constraint("Angle", 1, Q("59.9992 deg")),
    Sketcher.Constraint("DistanceY", 0, 2, 2, 2, Q("0.135 in")),
    Sketcher.Constraint("DistanceX", -1, 1, 3, 2, Q("1.35 in")),
    Sketcher.Constraint("DistanceY", 18, 2, 1, 2, Q("4.504 in")),
    Sketcher.Constraint("DistanceX", 0, 1, 0, 2, Q("1.9797 mm")),
    Sketcher.Constraint("DistanceY", -1, 1, 0, 2, Q("49.7107 mm")),
    Sketcher.Constraint("DistanceX", -1, 1, 12, 2, Q("97.3698 mm")),
    Sketcher.Constraint("DistanceY", -1, 1, 12, 2, Q("34.5095 mm")),
    Sketcher.Constraint("DistanceX", -1, 1, 36, 2, Q("14.7182 mm")),
])
pocket8 = body.newObject("PartDesign::Pocket", "Pocket007")
pocket8.Profile = sketch9
pocket8.Type = "ThroughAll"

# Sketch on XY plane
sketch10 = body.newObject("Sketcher::SketchObject", "Sketch009")
sketch10.AttachmentSupport = (doc.getObject("XY_Plane"), [""])
sketch10.MapMode = "FlatFace"
add_polygon(sketch10, [(10, 12), (10, 32), (24, 32), (24, 12)])  # lines 0-3
sketch10.addConstraint([
    Sketcher.Constraint("Vertical", 0),
    Sketcher.Constraint("Horizontal", 1),
    Sketcher.Constraint("Vertical", 2),
    Sketcher.Constraint("Horizontal", 3),
    Sketcher.Constraint("DistanceY", 0, 1, 0, 2, Q("0.8 in")),
    Sketcher.Constraint("DistanceX", 1, 1, 1, 2, Q("0.56 in")),
    Sketcher.Constraint("DistanceX", -1, 1, 0, 2, Q("9.8795 mm")),
    Sketcher.Constraint("DistanceY", -1, 1, 0, 2, Q("32.11 mm")),
])
sketch10.setExpression("Constraints[8]", "Params.sketch10_height")
sketch10.setExpression("Constraints[9]", "Params.sketch10_width")
pocket9 = body.newObject("PartDesign::Pocket", "Pocket008")
pocket9.Profile = sketch10
pocket9.Type = "ThroughAll"
pocket9.Reversed = True

doc.recompute()
